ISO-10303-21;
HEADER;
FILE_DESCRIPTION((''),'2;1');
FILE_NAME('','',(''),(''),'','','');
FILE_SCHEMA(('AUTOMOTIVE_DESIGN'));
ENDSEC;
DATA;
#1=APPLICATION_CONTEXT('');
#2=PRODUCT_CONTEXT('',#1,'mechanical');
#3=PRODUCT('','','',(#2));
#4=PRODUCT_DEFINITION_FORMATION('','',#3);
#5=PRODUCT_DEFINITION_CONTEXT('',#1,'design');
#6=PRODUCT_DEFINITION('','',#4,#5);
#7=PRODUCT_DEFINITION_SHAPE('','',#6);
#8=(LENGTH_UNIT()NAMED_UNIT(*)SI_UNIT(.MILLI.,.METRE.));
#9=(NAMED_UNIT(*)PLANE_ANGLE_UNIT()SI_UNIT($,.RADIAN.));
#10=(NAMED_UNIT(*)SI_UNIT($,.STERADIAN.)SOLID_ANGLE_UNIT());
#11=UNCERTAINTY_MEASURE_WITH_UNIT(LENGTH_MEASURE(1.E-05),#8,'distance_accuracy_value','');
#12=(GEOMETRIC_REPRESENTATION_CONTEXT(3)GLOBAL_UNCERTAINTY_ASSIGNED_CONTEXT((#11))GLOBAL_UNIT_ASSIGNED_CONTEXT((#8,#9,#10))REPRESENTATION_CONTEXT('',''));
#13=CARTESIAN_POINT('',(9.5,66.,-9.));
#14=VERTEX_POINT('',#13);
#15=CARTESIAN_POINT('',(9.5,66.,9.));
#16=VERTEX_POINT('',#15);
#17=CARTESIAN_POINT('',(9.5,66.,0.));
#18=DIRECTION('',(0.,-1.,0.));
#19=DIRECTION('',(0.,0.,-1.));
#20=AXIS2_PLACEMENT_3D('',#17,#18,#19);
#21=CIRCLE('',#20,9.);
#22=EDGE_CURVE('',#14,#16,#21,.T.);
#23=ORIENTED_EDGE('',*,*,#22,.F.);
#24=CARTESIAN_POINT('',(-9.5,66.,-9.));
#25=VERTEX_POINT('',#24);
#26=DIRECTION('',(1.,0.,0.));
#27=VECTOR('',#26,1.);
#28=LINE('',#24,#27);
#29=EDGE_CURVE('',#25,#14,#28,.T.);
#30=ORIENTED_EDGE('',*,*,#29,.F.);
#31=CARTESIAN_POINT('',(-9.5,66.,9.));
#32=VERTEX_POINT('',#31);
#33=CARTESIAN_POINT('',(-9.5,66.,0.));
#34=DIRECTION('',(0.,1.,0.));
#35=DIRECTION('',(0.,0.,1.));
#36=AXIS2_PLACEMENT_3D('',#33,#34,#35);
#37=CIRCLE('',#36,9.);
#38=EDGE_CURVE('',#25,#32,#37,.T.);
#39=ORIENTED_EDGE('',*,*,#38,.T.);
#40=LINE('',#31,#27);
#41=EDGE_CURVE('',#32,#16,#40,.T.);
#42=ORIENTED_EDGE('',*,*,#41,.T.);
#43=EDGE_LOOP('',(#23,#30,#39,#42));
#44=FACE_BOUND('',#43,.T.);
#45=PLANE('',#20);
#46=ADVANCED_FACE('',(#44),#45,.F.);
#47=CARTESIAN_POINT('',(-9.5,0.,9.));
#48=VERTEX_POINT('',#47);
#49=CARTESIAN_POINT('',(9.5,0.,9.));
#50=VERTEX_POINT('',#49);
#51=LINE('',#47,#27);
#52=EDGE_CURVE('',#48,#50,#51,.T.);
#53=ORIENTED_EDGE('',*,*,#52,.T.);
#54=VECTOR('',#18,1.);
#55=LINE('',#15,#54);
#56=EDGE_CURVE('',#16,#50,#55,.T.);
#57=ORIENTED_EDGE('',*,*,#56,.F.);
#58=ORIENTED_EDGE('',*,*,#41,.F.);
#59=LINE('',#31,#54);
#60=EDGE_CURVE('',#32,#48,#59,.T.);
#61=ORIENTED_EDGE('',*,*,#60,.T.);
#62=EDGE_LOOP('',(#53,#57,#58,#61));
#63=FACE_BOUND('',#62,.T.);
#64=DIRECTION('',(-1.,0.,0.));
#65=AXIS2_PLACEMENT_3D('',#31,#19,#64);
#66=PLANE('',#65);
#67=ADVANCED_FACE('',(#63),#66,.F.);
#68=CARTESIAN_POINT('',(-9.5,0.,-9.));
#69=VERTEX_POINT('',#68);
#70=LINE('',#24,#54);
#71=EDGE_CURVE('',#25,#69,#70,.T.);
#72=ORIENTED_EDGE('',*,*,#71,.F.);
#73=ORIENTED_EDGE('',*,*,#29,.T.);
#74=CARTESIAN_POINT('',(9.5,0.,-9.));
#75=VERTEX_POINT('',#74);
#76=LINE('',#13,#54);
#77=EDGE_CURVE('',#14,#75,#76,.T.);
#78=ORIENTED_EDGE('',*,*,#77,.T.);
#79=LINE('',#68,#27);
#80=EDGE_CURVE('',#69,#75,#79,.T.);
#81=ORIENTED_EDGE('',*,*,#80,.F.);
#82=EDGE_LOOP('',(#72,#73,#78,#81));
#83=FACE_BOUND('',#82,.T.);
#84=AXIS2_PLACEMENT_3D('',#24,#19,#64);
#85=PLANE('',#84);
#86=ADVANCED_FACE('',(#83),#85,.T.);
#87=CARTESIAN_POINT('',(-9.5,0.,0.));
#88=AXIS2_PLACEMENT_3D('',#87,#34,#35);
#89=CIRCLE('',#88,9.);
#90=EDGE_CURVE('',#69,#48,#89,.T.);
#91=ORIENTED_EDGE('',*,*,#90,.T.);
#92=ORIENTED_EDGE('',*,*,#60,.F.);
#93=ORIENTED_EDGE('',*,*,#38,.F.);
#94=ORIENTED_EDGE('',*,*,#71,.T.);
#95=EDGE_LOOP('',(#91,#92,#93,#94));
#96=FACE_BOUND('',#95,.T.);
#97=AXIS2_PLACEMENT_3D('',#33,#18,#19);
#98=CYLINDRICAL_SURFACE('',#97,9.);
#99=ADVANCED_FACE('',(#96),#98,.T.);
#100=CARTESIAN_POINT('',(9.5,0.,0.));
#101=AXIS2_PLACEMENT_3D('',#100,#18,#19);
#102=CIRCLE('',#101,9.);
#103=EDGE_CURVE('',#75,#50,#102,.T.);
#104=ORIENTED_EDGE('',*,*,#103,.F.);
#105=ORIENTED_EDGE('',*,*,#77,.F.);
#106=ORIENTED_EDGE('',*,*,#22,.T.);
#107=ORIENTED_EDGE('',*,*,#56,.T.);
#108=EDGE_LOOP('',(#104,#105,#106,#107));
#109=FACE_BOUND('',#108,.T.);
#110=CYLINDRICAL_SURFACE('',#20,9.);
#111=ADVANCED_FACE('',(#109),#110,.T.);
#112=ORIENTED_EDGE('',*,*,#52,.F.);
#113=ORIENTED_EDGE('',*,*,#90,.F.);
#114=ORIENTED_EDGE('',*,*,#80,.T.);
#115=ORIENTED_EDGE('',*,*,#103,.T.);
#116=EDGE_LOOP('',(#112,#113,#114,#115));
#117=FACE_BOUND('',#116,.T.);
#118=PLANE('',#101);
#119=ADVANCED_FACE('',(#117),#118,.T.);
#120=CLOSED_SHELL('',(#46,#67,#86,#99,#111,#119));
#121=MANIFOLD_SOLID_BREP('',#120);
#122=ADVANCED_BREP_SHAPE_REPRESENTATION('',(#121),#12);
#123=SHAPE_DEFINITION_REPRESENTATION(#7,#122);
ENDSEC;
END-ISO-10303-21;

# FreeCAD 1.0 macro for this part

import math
import FreeCAD as App
import Part
import Sketcher
Q = App.Units.Quantity

doc = App.newDocument("Part")
body = doc.addObject("PartDesign::Body", "Body")

# Sketch on XZ plane
sketch1 = doc.addObject("Sketcher::SketchObject", "Sketch")
body.addObject(sketch1)
sketch1.AttachmentSupport = (doc.XZ_Plane, [""])
sketch1.MapMode = "FlatFace"
sketch1.addGeometry(Part.LineSegment(App.Vector(10, -9, 0), App.Vector(-10, -9, 0)), False)
sketch1.addGeometry(Part.ArcOfCircle(Part.Circle(App.Vector(-10, 0, 0), App.Vector(0, 0, 1), 9), math.radians(90), math.radians(270)), False)
sketch1.addGeometry(Part.LineSegment(App.Vector(-10, 9, 0), App.Vector(10, 9, 0)), False)
sketch1.addGeometry(Part.ArcOfCircle(Part.Circle(App.Vector(10, 0, 0), App.Vector(0, 0, 1), 9), math.radians(-90), math.radians(90)), False)
sketch1.addConstraint(Sketcher.Constraint("Tangent", 0, 2, 1, 2))
sketch1.addConstraint(Sketcher.Constraint("Tangent", 1, 1, 2, 1))
sketch1.addConstraint(Sketcher.Constraint("Tangent", 2, 2, 3, 2))
sketch1.addConstraint(Sketcher.Constraint("Tangent", 3, 1, 0, 1))
sketch1.addConstraint(Sketcher.Constraint("Horizontal", 0))
sketch1.addConstraint(Sketcher.Constraint("Horizontal", 2))
sketch1.addConstraint(Sketcher.Constraint("Symmetric", 1, 3, 3, 3, -1, 1))
sketch1.addConstraint(Sketcher.Constraint("Radius", 1, Q("9 mm")))
sketch1.addConstraint(Sketcher.Constraint("DistanceX", 0, 2, 0, 1, Q("19 mm")))
pad1 = doc.addObject("PartDesign::Pad", "Pad")
body.addObject(pad1)
pad1.Profile = sketch1
pad1.Length = 66
pad1.Reversed = True

doc.recompute()
